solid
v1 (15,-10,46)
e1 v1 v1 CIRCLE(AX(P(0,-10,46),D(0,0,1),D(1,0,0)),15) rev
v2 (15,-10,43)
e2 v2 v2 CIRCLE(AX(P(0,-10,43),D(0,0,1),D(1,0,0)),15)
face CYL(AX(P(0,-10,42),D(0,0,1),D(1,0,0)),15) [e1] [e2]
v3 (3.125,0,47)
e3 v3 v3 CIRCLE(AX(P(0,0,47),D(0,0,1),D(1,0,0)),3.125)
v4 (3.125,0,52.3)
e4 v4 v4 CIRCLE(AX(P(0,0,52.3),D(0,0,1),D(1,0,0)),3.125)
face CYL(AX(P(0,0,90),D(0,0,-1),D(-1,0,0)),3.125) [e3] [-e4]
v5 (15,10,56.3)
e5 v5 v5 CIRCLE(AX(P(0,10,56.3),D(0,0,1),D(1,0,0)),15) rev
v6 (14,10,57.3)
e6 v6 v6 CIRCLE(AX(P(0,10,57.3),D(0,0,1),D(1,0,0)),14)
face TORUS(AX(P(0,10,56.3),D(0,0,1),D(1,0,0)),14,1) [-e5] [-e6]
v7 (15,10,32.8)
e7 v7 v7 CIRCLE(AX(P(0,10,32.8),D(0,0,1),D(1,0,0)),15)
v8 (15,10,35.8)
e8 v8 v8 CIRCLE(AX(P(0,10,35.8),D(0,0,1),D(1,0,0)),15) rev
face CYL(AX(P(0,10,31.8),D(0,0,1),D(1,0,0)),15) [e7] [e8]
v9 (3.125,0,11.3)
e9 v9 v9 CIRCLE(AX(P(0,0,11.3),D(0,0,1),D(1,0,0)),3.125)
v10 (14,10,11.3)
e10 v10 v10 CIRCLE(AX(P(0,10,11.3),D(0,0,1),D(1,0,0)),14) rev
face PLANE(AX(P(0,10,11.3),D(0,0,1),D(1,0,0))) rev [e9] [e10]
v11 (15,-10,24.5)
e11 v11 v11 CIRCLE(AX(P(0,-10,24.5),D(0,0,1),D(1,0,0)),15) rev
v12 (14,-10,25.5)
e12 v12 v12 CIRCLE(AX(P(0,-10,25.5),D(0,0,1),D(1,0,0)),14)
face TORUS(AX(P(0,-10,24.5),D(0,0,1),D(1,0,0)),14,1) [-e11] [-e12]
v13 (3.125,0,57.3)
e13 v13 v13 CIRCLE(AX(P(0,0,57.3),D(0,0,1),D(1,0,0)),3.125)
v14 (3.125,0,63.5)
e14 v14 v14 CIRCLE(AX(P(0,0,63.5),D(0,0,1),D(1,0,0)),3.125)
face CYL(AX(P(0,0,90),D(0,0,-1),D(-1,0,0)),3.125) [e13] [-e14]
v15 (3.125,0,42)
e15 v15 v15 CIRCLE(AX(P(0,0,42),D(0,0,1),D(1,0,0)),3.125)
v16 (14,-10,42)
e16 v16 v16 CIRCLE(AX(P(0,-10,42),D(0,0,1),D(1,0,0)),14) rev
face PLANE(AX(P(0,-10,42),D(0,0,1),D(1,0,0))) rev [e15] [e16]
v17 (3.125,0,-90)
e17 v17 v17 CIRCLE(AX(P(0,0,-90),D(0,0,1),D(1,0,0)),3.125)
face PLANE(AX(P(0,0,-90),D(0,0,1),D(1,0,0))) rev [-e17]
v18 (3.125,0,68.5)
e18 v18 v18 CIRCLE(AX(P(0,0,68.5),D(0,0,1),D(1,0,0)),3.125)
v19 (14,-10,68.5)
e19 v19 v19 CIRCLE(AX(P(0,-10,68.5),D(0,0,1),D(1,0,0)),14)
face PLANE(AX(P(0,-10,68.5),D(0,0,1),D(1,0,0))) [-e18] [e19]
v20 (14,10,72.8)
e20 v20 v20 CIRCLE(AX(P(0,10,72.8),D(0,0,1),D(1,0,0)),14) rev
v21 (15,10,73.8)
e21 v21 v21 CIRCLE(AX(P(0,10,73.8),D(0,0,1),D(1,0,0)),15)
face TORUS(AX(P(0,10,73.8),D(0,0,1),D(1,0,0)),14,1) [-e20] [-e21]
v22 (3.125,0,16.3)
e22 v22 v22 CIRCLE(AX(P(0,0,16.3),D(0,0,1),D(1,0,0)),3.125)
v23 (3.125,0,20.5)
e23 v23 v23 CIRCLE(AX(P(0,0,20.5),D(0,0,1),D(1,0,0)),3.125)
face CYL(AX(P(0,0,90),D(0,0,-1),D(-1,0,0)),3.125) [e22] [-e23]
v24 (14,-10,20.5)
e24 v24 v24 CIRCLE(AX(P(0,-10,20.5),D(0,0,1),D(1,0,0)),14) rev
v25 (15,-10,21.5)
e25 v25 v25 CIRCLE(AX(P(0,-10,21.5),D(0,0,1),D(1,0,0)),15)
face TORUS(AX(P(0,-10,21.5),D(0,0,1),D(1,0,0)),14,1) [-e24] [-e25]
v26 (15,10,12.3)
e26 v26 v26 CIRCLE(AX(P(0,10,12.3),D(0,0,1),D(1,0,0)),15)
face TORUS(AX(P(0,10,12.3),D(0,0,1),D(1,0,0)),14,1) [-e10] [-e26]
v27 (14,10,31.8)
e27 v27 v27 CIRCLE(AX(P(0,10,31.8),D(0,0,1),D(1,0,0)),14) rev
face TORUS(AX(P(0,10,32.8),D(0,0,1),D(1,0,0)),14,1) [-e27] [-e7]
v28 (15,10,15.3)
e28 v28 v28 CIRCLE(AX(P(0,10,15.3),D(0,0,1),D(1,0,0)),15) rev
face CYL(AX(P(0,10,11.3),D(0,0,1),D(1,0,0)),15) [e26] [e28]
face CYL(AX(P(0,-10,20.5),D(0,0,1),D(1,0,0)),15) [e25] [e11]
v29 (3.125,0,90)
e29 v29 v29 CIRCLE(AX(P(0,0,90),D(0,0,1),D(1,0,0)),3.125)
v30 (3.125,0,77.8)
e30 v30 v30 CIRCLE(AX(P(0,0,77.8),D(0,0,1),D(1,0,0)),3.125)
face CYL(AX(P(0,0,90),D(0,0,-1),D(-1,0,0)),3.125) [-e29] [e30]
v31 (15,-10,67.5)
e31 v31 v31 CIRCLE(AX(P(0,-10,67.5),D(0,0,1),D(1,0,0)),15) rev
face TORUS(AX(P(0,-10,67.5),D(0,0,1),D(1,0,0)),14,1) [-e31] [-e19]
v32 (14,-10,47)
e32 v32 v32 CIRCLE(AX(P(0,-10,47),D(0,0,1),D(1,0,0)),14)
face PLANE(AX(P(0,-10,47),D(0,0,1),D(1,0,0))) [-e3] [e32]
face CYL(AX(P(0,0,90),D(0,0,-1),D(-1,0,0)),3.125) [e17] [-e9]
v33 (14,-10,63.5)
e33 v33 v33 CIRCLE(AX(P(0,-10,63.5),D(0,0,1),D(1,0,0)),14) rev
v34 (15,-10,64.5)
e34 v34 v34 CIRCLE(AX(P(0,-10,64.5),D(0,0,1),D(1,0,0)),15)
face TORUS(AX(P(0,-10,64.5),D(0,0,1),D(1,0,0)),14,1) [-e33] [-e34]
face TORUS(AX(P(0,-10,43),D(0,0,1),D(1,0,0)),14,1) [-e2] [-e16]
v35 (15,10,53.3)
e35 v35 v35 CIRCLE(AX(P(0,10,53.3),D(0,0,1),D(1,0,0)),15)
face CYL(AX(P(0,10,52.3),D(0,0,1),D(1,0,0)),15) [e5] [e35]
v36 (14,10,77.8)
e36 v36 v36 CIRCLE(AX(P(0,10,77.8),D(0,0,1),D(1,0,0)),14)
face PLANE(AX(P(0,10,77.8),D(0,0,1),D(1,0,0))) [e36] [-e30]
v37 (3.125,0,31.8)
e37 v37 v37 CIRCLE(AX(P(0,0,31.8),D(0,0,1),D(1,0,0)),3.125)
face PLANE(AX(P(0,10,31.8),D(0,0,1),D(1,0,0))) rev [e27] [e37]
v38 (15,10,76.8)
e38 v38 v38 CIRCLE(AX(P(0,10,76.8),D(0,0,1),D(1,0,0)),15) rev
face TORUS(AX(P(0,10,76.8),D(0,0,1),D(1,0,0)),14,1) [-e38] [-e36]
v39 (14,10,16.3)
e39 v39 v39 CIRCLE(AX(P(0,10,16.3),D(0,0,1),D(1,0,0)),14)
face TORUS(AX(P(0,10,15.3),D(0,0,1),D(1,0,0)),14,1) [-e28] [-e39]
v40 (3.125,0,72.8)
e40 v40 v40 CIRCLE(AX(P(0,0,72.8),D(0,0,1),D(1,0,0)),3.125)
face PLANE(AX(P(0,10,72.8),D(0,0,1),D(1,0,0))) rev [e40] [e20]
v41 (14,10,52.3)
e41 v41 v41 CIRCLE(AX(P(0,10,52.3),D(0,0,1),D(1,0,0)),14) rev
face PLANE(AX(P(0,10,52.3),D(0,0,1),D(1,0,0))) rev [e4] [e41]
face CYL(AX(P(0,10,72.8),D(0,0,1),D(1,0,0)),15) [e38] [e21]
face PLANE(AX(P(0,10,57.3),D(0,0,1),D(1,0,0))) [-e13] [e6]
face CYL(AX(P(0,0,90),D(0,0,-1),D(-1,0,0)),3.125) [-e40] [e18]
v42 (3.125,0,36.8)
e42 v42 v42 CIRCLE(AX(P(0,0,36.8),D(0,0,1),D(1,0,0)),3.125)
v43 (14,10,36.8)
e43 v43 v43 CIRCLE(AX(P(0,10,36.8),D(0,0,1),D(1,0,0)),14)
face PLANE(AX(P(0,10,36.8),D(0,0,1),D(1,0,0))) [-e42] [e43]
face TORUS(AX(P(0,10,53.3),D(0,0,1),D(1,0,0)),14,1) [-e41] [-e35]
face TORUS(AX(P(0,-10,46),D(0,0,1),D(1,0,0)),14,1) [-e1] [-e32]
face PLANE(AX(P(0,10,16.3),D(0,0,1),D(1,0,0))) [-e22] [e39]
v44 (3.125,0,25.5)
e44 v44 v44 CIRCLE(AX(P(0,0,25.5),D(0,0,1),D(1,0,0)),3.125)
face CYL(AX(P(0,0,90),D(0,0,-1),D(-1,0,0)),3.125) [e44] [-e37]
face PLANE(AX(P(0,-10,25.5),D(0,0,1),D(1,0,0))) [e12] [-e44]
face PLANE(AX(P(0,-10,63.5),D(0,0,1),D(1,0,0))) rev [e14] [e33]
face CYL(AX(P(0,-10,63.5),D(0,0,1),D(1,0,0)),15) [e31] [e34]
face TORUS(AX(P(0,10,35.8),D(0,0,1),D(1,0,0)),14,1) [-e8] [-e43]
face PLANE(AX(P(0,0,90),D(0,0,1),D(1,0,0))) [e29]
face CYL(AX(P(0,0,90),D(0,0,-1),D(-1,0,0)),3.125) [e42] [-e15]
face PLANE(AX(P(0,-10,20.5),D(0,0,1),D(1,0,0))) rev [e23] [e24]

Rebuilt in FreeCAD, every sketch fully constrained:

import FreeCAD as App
import Part
import Sketcher

V = App.Vector


def edges_at(feature, points):
    """Names of the edges that pass closest to the given points."""
    edges = feature.Shape.Edges
    near = lambda p: min(range(len(edges)), key=lambda i: edges[i].distToShape(Part.Vertex(*p))[0])
    return sorted({f"Edge{near(p) + 1}" for p in points})

doc = App.newDocument("Part")
body = doc.addObject("PartDesign::Body", "Body")

# Sketch on XY plane
sketch1 = doc.addObject("Sketcher::SketchObject", "Sketch")
body.addObject(sketch1)
sketch1.AttachmentSupport = (doc.XY_Plane, [""])
sketch1.MapMode = "FlatFace"
sketch1.addGeometry(Part.Circle(V(0, 0, 0), V(0, 0, 1), 3.1), False)
sketch1.addConstraint([
    Sketcher.Constraint("Coincident", 0, 3, -1, 1),
    Sketcher.Constraint("Diameter", 0, 6.25),
])
pad1 = doc.addObject("PartDesign::Pad", "Pad")
body.addObject(pad1)
pad1.Profile = sketch1
pad1.Length = 180
pad1.Midplane = True

# Sketch on XY plane
sketch2 = doc.addObject("Sketcher::SketchObject", "Sketch001")
body.addObject(sketch2)
sketch2.AttachmentSupport = (doc.XY_Plane, [""])
sketch2.MapMode = "FlatFace"
sketch2.AttachmentOffset = App.Placement(V(0, 0, 77.8), App.Rotation())
sketch2.addGeometry(Part.Circle(V(0, 10, 0), V(0, 0, 1), 15), False)
sketch2.addConstraint([
    Sketcher.Constraint("PointOnObject", 0, 3, -2),
    Sketcher.Constraint("Diameter", 0, 30.0),
    Sketcher.Constraint("DistanceY", -1, 1, 0, 3, 10.0),
])
pad2 = doc.addObject("PartDesign::Pad", "Pad001")
body.addObject(pad2)
pad2.Profile = sketch2
pad2.Length = 5
pad2.Reversed = True
doc.recompute()

linearpattern = doc.addObject("PartDesign::LinearPattern", "LinearPattern")
body.addObject(linearpattern)
linearpattern.Originals = [pad2]
linearpattern.Direction = (doc.Z_Axis, [""])
linearpattern.Mode = "offset"
linearpattern.Offset = 20.5
linearpattern.Occurrences = 4
linearpattern.Reversed = True
body.Tip = linearpattern

# Sketch on XY plane
sketch3 = doc.addObject("Sketcher::SketchObject", "Sketch002")
body.addObject(sketch3)
sketch3.AttachmentSupport = (doc.XY_Plane, [""])
sketch3.MapMode = "FlatFace"
sketch3.AttachmentOffset = App.Placement(V(0, 0, 68.5), App.Rotation())
sketch3.addGeometry(Part.Circle(V(0, -10, 0), V(0, 0, 1), 15), False)
sketch3.addConstraint([
    Sketcher.Constraint("PointOnObject", 0, 3, -2),
    Sketcher.Constraint("Diameter", 0, 30.0),
    Sketcher.Constraint("DistanceY", 0, 3, -1, 1, 10.0),
])
pad3 = doc.addObject("PartDesign::Pad", "Pad002")
body.addObject(pad3)
pad3.Profile = sketch3
pad3.Length = 5
pad3.Reversed = True
doc.recompute()

linearpattern2 = doc.addObject("PartDesign::LinearPattern", "LinearPattern001")
body.addObject(linearpattern2)
linearpattern2.Originals = [pad3]
linearpattern2.Direction = (doc.Z_Axis, [""])
linearpattern2.Mode = "offset"
linearpattern2.Offset = 21.5
linearpattern2.Occurrences = 3
linearpattern2.Reversed = True
body.Tip = linearpattern2
doc.recompute()

fillet = doc.addObject("PartDesign::Fillet", "Fillet")
body.addObject(fillet)
fillet.Base = (linearpattern2, edges_at(linearpattern2, [
    (-15, 10, 52.3),
    (-15, 10, 57.3),
    (-15, 10, 31.8),
    (-15, 10, 36.8),
    (-15, 10, 11.3),
    (-15, 10, 16.3),
    (-15, -10, 63.5),
    (-15, -10, 68.5),
    (-15, -10, 42),
    (-15, -10, 47),
    (-15, -10, 20.5),
    (-15, -10, 25.5),
    (-15, 10, 72.8),
    (-15, 10, 77.8),
]))
fillet.Radius = 1

doc.recompute()
